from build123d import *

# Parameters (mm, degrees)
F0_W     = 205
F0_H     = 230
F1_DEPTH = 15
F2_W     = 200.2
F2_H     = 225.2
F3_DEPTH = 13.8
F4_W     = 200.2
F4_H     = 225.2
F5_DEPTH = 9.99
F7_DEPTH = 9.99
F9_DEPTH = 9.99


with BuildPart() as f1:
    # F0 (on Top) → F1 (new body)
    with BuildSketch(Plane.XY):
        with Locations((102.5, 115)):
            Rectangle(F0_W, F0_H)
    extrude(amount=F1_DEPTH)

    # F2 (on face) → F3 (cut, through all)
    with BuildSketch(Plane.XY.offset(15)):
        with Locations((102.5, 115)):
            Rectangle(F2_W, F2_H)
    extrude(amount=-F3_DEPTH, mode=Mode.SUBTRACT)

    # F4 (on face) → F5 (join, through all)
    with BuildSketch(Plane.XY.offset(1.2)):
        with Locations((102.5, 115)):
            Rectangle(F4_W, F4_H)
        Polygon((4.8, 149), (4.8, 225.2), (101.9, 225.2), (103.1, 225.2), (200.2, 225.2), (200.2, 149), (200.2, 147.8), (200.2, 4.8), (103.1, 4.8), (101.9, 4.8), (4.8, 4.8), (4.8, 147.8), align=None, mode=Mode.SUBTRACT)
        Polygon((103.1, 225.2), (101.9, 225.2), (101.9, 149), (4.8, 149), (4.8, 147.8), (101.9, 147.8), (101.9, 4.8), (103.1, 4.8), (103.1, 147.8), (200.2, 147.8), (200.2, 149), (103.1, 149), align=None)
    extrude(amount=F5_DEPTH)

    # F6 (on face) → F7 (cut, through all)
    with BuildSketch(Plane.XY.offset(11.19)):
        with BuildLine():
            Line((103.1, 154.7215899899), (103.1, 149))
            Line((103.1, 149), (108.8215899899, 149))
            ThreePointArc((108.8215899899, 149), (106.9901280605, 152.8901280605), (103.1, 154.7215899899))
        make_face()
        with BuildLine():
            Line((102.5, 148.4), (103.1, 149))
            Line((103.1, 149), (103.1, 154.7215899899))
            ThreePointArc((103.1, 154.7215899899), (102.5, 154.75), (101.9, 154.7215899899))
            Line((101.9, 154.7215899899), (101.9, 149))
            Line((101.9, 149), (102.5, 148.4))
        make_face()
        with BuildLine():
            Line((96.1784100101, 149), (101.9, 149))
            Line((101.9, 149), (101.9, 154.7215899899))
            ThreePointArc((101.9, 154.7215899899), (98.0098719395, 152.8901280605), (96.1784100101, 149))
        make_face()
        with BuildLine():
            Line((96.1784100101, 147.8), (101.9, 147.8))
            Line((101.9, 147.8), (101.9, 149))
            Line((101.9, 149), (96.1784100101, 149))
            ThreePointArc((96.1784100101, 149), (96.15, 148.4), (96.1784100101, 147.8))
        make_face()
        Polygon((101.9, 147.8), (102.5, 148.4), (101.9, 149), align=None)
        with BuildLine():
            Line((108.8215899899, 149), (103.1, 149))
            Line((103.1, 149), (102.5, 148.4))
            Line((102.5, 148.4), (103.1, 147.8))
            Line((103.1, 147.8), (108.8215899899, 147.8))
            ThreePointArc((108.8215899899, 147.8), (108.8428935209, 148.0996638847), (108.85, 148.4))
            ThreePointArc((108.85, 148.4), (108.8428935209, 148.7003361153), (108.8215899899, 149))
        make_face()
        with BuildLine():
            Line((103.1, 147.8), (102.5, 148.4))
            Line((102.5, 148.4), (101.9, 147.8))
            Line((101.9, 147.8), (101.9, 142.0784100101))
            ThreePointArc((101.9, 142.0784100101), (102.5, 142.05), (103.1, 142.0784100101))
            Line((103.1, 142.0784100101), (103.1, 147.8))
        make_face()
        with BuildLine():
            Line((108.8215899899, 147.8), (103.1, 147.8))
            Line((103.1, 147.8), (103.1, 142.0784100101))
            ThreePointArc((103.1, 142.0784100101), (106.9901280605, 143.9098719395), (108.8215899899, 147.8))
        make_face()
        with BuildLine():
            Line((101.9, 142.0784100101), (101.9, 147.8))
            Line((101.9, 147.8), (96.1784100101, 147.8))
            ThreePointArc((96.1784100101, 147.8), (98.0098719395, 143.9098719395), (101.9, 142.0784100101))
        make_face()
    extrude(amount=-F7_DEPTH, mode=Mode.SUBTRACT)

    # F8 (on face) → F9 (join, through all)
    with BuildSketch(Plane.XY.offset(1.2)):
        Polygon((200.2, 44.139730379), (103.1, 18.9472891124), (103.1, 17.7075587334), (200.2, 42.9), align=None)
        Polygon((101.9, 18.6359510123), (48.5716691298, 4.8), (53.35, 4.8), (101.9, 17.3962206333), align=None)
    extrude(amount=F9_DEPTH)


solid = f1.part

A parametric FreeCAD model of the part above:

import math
import FreeCAD as App
import Part
import Sketcher

V = App.Vector
Q = App.Units.Quantity


def add_polygon(sketch, points):
    """Adds a closed chain of lines whose ends are joined by coincident constraints."""
    first, n = sketch.GeometryCount, len(points)
    for a, b in zip(points, points[1:] + points[:1]):
        sketch.addGeometry(Part.LineSegment(App.Vector(*a, 0), App.Vector(*b, 0)), False)
    for i in range(n):
        sketch.addConstraint(Sketcher.Constraint("Coincident", first + i, 2, first + (i + 1) % n, 1))

doc = App.newDocument("Part")
body = doc.addObject("PartDesign::Body", "Body")

# Sketch on XY plane
sketch1 = doc.addObject("Sketcher::SketchObject", "Sketch")
body.addObject(sketch1)
sketch1.AttachmentSupport = (doc.XY_Plane, [""])
sketch1.MapMode = "FlatFace"
add_polygon(sketch1, [(0, 230), (0, 0), (205, 0), (205, 230)])  # lines 0-3
sketch1.addConstraint([
    Sketcher.Constraint("Vertical", 0),
    Sketcher.Constraint("Horizontal", 1),
    Sketcher.Constraint("Vertical", 2),
    Sketcher.Constraint("Horizontal", 3),
    Sketcher.Constraint("Coincident", 0, 2, -1, 1),
    Sketcher.Constraint("DistanceX", 1, 1, 1, 2, Q("205 mm")),
    Sketcher.Constraint("DistanceY", 0, 2, 0, 1, Q("230 mm")),
])
pad1 = doc.addObject("PartDesign::Pad", "Pad")
body.addObject(pad1)
pad1.Profile = sketch1
pad1.Length = 15

# Sketch on XY plane
sketch2 = doc.addObject("Sketcher::SketchObject", "Sketch001")
body.addObject(sketch2)
sketch2.AttachmentSupport = (doc.XY_Plane, [""])
sketch2.MapMode = "FlatFace"
sketch2.AttachmentOffset = App.Placement(V(0, 0, 15), App.Rotation())
add_polygon(sketch2, [(2, 228), (2, 2), (203, 2), (203, 228)])  # lines 0-3
sketch2.addConstraint([
    Sketcher.Constraint("Vertical", 0),
    Sketcher.Constraint("Horizontal", 1),
    Sketcher.Constraint("Vertical", 2),
    Sketcher.Constraint("Horizontal", 3),
    Sketcher.Constraint("DistanceX", 1, 1, 1, 2, Q("200.2 mm")),
    Sketcher.Constraint("DistanceY", 0, 2, 0, 1, Q("225.2 mm")),
    Sketcher.Constraint("DistanceX", -1, 1, 0, 2, Q("2.4 mm")),
    Sketcher.Constraint("DistanceY", -1, 1, 0, 2, Q("2.4 mm")),
])
pocket1 = doc.addObject("PartDesign::Pocket", "Pocket")
body.addObject(pocket1)
pocket1.Profile = sketch2
pocket1.Length = 13.8

# Sketch on XY plane
sketch3 = doc.addObject("Sketcher::SketchObject", "Sketch002")
body.addObject(sketch3)
sketch3.AttachmentSupport = (doc.XY_Plane, [""])
sketch3.MapMode = "FlatFace"
sketch3.AttachmentOffset = App.Placement(V(0, 0, 1.2), App.Rotation())
add_polygon(sketch3, [(2, 228), (2, 2), (203, 2), (203, 228)])  # lines 0-3
add_polygon(sketch3, [(5, 5), (5, 148), (102, 148), (102, 5)])  # lines 4-7
add_polygon(sketch3, [(5, 149), (5, 225), (102, 225), (102, 149)])  # lines 8-11
add_polygon(sketch3, [(103, 225), (200, 225), (200, 149), (103, 149)])  # lines 12-15
add_polygon(sketch3, [(200, 148), (200, 5), (103, 5), (103, 148)])  # lines 16-19
sketch3.addConstraint([
    Sketcher.Constraint("Vertical", 0),
    Sketcher.Constraint("Horizontal", 1),
    Sketcher.Constraint("Vertical", 2),
    Sketcher.Constraint("Horizontal", 3),
    Sketcher.Constraint("Vertical", 4),
    Sketcher.Constraint("Horizontal", 5),
    Sketcher.Constraint("Vertical", 6),
    Sketcher.Constraint("Horizontal", 7),
    Sketcher.Constraint("Vertical", 8),
    Sketcher.Constraint("Horizontal", 9),
    Sketcher.Constraint("Vertical", 10),
    Sketcher.Constraint("Horizontal", 11),
    Sketcher.Constraint("Horizontal", 12),
    Sketcher.Constraint("Vertical", 13),
    Sketcher.Constraint("Horizontal", 14),
    Sketcher.Constraint("Vertical", 15),
    Sketcher.Constraint("Vertical", 16),
    Sketcher.Constraint("Horizontal", 17),
    Sketcher.Constraint("Vertical", 18),
    Sketcher.Constraint("Horizontal", 19),
    Sketcher.Constraint("Horizontal", 9, 2, 12, 2),
    Sketcher.Constraint("Horizontal", 11, 2, 13, 2),
    Sketcher.Constraint("Horizontal", 7, 2, 16, 2),
    Sketcher.Constraint("Horizontal", 5, 2, 18, 2),
    Sketcher.Constraint("Vertical", 7, 2, 8, 2),
    Sketcher.Constraint("Vertical", 6, 2, 9, 2),
    Sketcher.Constraint("Vertical", 13, 2, 16, 2),
    Sketcher.Constraint("Vertical", 15, 2, 17, 2),
    Sketcher.Constraint("Equal", 11, 12),
    Sketcher.Constraint("DistanceY", 4, 1, 4, 2, Q("143 mm")),
    Sketcher.Constraint("DistanceX", 1, 1, 1, 2, Q("200.2 mm")),
    Sketcher.Constraint("DistanceX", 5, 1, 5, 2, Q("97.1 mm")),
    Sketcher.Constraint("DistanceY", 0, 2, 0, 1, Q("225.2 mm")),
    Sketcher.Constraint("DistanceY", 8, 1, 8, 2, Q("76.2 mm")),
    Sketcher.Constraint("DistanceY", -1, 1, 10, 2, Q("149 mm")),
    Sketcher.Constraint("DistanceX", -1, 1, 0, 2, Q("2.4 mm")),
    Sketcher.Constraint("DistanceY", -1, 1, 0, 2, Q("2.4 mm")),
    Sketcher.Constraint("DistanceX", -1, 1, 4, 2, Q("4.8 mm")),
    Sketcher.Constraint("DistanceY", -1, 1, 4, 2, Q("147.8 mm")),
    Sketcher.Constraint("DistanceX", -1, 1, 12, 2, Q("200.2 mm")),
])
pad2 = doc.addObject("PartDesign::Pad", "Pad001")
body.addObject(pad2)
pad2.Profile = sketch3
pad2.Length = 9.99

# Sketch on XY plane
sketch4 = doc.addObject("Sketcher::SketchObject", "Sketch003")
body.addObject(sketch4)
sketch4.AttachmentSupport = (doc.XY_Plane, [""])
sketch4.MapMode = "FlatFace"
sketch4.AttachmentOffset = App.Placement(V(0, 0, 11.19), App.Rotation())
sketch4.addGeometry([
    Part.ArcOfCircle(Part.Circle(V(102.5, 148.4, 0), V(0, 0, 1), 6.3), math.radians(5), math.radians(85)),  # 0
    Part.ArcOfCircle(Part.Circle(V(102.5, 148.4, 0), V(0, 0, 1), 6.4), math.radians(84.58), math.radians(95.42)),  # 1
    Part.ArcOfCircle(Part.Circle(V(102.5, 148.4, 0), V(0, 0, 1), 6.3), math.radians(95), math.radians(175)),  # 2
    Part.ArcOfCircle(Part.Circle(V(102.5, 148.4, 0), V(0, 0, 1), 6.4), math.radians(174.58), math.radians(185.42)),  # 3
    Part.ArcOfCircle(Part.Circle(V(102.5, 148.4, 0), V(0, 0, 1), 6.3), math.radians(-175), math.radians(-95)),  # 4
    Part.ArcOfCircle(Part.Circle(V(102.5, 148.4, 0), V(0, 0, 1), 6.4), math.radians(-95.42), math.radians(-84.58)),  # 5
    Part.ArcOfCircle(Part.Circle(V(102.5, 148.4, 0), V(0, 0, 1), 6.3), math.radians(-85), math.radians(-5)),  # 6
    Part.ArcOfCircle(Part.Circle(V(102.5, 148.4, 0), V(0, 0, 1), 6.4), math.radians(-5.42), math.radians(0)),  # 7
    Part.ArcOfCircle(Part.Circle(V(102.5, 148.4, 0), V(0, 0, 1), 6.4), math.radians(0), math.radians(5.42)),  # 8
], False)
sketch4.addConstraint([
    Sketcher.Constraint("Tangent", 0, 2, 1, 1),
    Sketcher.Constraint("Tangent", 1, 2, 2, 1),
    Sketcher.Constraint("Tangent", 2, 2, 3, 1),
    Sketcher.Constraint("Tangent", 3, 2, 4, 1),
    Sketcher.Constraint("Tangent", 4, 2, 5, 1),
    Sketcher.Constraint("Tangent", 5, 2, 6, 1),
    Sketcher.Constraint("Tangent", 6, 2, 7, 1),
    Sketcher.Constraint("Tangent", 7, 2, 8, 1),
    Sketcher.Constraint("Tangent", 8, 2, 0, 1),
    Sketcher.Constraint("Coincident", 2, 3, 0, 3),
    Sketcher.Constraint("Coincident", 4, 3, 0, 3),
    Sketcher.Constraint("Coincident", 6, 3, 0, 3),
    Sketcher.Constraint("Horizontal", 0, 2, 1, 2),
    Sketcher.Constraint("Horizontal", 4, 2, 5, 2),
    Sketcher.Constraint("Horizontal", 3, 2, 6, 2),
    Sketcher.Constraint("Horizontal", 8, 3, 7, 2),
    Sketcher.Constraint("Horizontal", 2, 2, 8, 2),
    Sketcher.Constraint("Vertical", 2, 2, 3, 2),
    Sketcher.Constraint("Vertical", 1, 2, 4, 2),
    Sketcher.Constraint("Radius", 0, Q("6.35 mm")),
    Sketcher.Constraint("DistanceY", -1, 1, 2, 2, Q("149 mm")),
    Sketcher.Constraint("DistanceX", -1, 1, 0, 3, Q("102.5 mm")),
    Sketcher.Constraint("DistanceY", -1, 1, 0, 3, Q("148.4 mm")),
    Sketcher.Constraint("DistanceX", -1, 1, 0, 2, Q("103.1 mm")),
])
pocket2 = doc.addObject("PartDesign::Pocket", "Pocket001")
body.addObject(pocket2)
pocket2.Profile = sketch4
pocket2.Length = 9.99

# Sketch on XY plane
sketch5 = doc.addObject("Sketcher::SketchObject", "Sketch004")
body.addObject(sketch5)
sketch5.AttachmentSupport = (doc.XY_Plane, [""])
sketch5.MapMode = "FlatFace"
sketch5.AttachmentOffset = App.Placement(V(0, 0, 1.2), App.Rotation())
add_polygon(sketch5, [(200.2, 44.1), (103.1, 18.9), (103.1, 17.7), (200.2, 42.9)])  # lines 0-3
add_polygon(sketch5, [(101.9, 18.6), (48.6, 4.8), (53.4, 4.8), (101.9, 17.4)])  # lines 4-7
sketch5.addConstraint([
    Sketcher.Constraint("Vertical", 1),
    Sketcher.Constraint("Vertical", 3),
    Sketcher.Constraint("Horizontal", 5),
    Sketcher.Constraint("Vertical", 7),
    Sketcher.Constraint("Parallel", 0, 2),
    Sketcher.Constraint("Parallel", 2, 4),
    Sketcher.Constraint("Parallel", 4, 6),
    Sketcher.Constraint("Equal", 3, 7),
    Sketcher.Constraint("DistanceX", -1, 1, 0, 2, Q("103.1 mm")),
    Sketcher.Constraint("DistanceX", -1, 1, 2, 2, Q("200.2 mm")),
    Sketcher.Constraint("DistanceY", -1, 1, 2, 2, Q("42.9 mm")),
    Sketcher.Constraint("DistanceY", -1, 1, 4, 2, Q("4.8 mm")),
    Sketcher.Constraint("DistanceX", -1, 1, 6, 2, Q("101.9 mm")),
    Sketcher.Constraint("DistanceX", -1, 1, 5, 2, Q("53.35 mm")),
    Sketcher.Constraint("DistanceX", 5, 1, 5, 2, Q("4.778331 mm")),
    Sketcher.Constraint("DistanceY", 1, 2, 1, 1, Q("1.23973 mm")),
])
pad3 = doc.addObject("PartDesign::Pad", "Pad002")
body.addObject(pad3)
pad3.Profile = sketch5
pad3.Length = 9.99

doc.recompute()
